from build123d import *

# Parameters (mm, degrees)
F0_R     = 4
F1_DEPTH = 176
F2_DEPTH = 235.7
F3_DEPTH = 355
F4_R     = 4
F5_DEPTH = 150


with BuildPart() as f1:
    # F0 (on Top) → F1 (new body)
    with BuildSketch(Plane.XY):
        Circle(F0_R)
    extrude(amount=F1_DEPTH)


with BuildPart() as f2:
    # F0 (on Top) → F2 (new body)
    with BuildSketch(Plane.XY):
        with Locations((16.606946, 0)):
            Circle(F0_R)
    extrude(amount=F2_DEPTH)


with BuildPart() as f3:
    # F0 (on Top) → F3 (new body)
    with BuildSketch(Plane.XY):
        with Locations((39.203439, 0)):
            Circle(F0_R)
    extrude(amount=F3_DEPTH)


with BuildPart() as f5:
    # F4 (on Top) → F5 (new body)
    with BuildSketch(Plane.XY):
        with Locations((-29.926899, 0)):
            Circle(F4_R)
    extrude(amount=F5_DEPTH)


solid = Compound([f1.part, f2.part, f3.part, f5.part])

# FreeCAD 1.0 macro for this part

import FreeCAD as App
import Part
import Sketcher

V = App.Vector

doc = App.newDocument("Part")
params = doc.addObject("Spreadsheet::Sheet", "Params")
for row, (alias, value) in enumerate([
    ("sketch1_diameter", "8 mm"),
    ("pad1_length", "176 mm"),
    ("sketch2_diameter", "8 mm"),
    ("pad2_length", "235.7 mm"),
    ("sketch3_diameter", "8 mm"),
    ("pad3_length", "355 mm"),
    ("sketch4_diameter", "8 mm"),
    ("pad4_length", "150 mm"),
], start=1):
    params.set(f"A{row}", alias)
    params.set(f"B{row}", "=" + value)
    params.setAlias(f"B{row}", alias)

body = doc.addObject("PartDesign::Body", "Body")

sketch1 = body.newObject("Sketcher::SketchObject", "Sketch")
sketch1.AttachmentSupport = (doc.getObject("XY_Plane"), [""])
sketch1.MapMode = "FlatFace"
sketch1.addGeometry(Part.Circle(V(0, 0, 0), V(0, 0, 1), 4), False)
sketch1.addConstraint(Sketcher.Constraint("Coincident", 0, 3, -1, 1))
sketch1.addConstraint(Sketcher.Constraint("Diameter", 0, 8.0))
sketch1.setExpression("Constraints[1]", "Params.sketch1_diameter")
pad1 = body.newObject("PartDesign::Pad", "Pad")
pad1.Profile = sketch1
pad1.setExpression("Length", "Params.pad1_length")
body2 = doc.addObject("PartDesign::Body", "Body001")

sketch2 = body2.newObject("Sketcher::SketchObject", "Sketch001")
sketch2.AttachmentSupport = (doc.getObject("XY_Plane001"), [""])
sketch2.MapMode = "FlatFace"
sketch2.addGeometry(Part.Circle(V(16.6, 0, 0), V(0, 0, 1), 4), False)
sketch2.addConstraint(Sketcher.Constraint("PointOnObject", 0, 3, -1))
sketch2.addConstraint(Sketcher.Constraint("Diameter", 0, 8.0))
sketch2.addConstraint(Sketcher.Constraint("DistanceX", -1, 1, 0, 3, 16.606946))
sketch2.setExpression("Constraints[1]", "Params.sketch2_diameter")
pad2 = body2.newObject("PartDesign::Pad", "Pad001")
pad2.Profile = sketch2
pad2.setExpression("Length", "Params.pad2_length")
body3 = doc.addObject("PartDesign::Body", "Body002")

sketch3 = body3.newObject("Sketcher::SketchObject", "Sketch002")
sketch3.AttachmentSupport = (doc.getObject("XY_Plane002"), [""])
sketch3.MapMode = "FlatFace"
sketch3.addGeometry(Part.Circle(V(39.2, 0, 0), V(0, 0, 1), 4), False)
sketch3.addConstraint(Sketcher.Constraint("PointOnObject", 0, 3, -1))
sketch3.addConstraint(Sketcher.Constraint("Diameter", 0, 8.0))
sketch3.addConstraint(Sketcher.Constraint("DistanceX", -1, 1, 0, 3, 39.203439))
sketch3.setExpression("Constraints[1]", "Params.sketch3_diameter")
pad3 = body3.newObject("PartDesign::Pad", "Pad002")
pad3.Profile = sketch3
pad3.setExpression("Length", "Params.pad3_length")
body4 = doc.addObject("PartDesign::Body", "Body003")

sketch4 = body4.newObject("Sketcher::SketchObject", "Sketch003")
sketch4.AttachmentSupport = (doc.getObject("XY_Plane003"), [""])
sketch4.MapMode = "FlatFace"
sketch4.addGeometry(Part.Circle(V(-29.9, 0, 0), V(0, 0, 1), 4), False)
sketch4.addConstraint(Sketcher.Constraint("PointOnObject", 0, 3, -1))
sketch4.addConstraint(Sketcher.Constraint("Diameter", 0, 8.0))
sketch4.addConstraint(Sketcher.Constraint("DistanceX", 0, 3, -1, 1, 29.926899))
sketch4.setExpression("Constraints[1]", "Params.sketch4_diameter")
pad4 = body4.newObject("PartDesign::Pad", "Pad003")
pad4.Profile = sketch4
pad4.setExpression("Length", "Params.pad4_length")

doc.recompute()
